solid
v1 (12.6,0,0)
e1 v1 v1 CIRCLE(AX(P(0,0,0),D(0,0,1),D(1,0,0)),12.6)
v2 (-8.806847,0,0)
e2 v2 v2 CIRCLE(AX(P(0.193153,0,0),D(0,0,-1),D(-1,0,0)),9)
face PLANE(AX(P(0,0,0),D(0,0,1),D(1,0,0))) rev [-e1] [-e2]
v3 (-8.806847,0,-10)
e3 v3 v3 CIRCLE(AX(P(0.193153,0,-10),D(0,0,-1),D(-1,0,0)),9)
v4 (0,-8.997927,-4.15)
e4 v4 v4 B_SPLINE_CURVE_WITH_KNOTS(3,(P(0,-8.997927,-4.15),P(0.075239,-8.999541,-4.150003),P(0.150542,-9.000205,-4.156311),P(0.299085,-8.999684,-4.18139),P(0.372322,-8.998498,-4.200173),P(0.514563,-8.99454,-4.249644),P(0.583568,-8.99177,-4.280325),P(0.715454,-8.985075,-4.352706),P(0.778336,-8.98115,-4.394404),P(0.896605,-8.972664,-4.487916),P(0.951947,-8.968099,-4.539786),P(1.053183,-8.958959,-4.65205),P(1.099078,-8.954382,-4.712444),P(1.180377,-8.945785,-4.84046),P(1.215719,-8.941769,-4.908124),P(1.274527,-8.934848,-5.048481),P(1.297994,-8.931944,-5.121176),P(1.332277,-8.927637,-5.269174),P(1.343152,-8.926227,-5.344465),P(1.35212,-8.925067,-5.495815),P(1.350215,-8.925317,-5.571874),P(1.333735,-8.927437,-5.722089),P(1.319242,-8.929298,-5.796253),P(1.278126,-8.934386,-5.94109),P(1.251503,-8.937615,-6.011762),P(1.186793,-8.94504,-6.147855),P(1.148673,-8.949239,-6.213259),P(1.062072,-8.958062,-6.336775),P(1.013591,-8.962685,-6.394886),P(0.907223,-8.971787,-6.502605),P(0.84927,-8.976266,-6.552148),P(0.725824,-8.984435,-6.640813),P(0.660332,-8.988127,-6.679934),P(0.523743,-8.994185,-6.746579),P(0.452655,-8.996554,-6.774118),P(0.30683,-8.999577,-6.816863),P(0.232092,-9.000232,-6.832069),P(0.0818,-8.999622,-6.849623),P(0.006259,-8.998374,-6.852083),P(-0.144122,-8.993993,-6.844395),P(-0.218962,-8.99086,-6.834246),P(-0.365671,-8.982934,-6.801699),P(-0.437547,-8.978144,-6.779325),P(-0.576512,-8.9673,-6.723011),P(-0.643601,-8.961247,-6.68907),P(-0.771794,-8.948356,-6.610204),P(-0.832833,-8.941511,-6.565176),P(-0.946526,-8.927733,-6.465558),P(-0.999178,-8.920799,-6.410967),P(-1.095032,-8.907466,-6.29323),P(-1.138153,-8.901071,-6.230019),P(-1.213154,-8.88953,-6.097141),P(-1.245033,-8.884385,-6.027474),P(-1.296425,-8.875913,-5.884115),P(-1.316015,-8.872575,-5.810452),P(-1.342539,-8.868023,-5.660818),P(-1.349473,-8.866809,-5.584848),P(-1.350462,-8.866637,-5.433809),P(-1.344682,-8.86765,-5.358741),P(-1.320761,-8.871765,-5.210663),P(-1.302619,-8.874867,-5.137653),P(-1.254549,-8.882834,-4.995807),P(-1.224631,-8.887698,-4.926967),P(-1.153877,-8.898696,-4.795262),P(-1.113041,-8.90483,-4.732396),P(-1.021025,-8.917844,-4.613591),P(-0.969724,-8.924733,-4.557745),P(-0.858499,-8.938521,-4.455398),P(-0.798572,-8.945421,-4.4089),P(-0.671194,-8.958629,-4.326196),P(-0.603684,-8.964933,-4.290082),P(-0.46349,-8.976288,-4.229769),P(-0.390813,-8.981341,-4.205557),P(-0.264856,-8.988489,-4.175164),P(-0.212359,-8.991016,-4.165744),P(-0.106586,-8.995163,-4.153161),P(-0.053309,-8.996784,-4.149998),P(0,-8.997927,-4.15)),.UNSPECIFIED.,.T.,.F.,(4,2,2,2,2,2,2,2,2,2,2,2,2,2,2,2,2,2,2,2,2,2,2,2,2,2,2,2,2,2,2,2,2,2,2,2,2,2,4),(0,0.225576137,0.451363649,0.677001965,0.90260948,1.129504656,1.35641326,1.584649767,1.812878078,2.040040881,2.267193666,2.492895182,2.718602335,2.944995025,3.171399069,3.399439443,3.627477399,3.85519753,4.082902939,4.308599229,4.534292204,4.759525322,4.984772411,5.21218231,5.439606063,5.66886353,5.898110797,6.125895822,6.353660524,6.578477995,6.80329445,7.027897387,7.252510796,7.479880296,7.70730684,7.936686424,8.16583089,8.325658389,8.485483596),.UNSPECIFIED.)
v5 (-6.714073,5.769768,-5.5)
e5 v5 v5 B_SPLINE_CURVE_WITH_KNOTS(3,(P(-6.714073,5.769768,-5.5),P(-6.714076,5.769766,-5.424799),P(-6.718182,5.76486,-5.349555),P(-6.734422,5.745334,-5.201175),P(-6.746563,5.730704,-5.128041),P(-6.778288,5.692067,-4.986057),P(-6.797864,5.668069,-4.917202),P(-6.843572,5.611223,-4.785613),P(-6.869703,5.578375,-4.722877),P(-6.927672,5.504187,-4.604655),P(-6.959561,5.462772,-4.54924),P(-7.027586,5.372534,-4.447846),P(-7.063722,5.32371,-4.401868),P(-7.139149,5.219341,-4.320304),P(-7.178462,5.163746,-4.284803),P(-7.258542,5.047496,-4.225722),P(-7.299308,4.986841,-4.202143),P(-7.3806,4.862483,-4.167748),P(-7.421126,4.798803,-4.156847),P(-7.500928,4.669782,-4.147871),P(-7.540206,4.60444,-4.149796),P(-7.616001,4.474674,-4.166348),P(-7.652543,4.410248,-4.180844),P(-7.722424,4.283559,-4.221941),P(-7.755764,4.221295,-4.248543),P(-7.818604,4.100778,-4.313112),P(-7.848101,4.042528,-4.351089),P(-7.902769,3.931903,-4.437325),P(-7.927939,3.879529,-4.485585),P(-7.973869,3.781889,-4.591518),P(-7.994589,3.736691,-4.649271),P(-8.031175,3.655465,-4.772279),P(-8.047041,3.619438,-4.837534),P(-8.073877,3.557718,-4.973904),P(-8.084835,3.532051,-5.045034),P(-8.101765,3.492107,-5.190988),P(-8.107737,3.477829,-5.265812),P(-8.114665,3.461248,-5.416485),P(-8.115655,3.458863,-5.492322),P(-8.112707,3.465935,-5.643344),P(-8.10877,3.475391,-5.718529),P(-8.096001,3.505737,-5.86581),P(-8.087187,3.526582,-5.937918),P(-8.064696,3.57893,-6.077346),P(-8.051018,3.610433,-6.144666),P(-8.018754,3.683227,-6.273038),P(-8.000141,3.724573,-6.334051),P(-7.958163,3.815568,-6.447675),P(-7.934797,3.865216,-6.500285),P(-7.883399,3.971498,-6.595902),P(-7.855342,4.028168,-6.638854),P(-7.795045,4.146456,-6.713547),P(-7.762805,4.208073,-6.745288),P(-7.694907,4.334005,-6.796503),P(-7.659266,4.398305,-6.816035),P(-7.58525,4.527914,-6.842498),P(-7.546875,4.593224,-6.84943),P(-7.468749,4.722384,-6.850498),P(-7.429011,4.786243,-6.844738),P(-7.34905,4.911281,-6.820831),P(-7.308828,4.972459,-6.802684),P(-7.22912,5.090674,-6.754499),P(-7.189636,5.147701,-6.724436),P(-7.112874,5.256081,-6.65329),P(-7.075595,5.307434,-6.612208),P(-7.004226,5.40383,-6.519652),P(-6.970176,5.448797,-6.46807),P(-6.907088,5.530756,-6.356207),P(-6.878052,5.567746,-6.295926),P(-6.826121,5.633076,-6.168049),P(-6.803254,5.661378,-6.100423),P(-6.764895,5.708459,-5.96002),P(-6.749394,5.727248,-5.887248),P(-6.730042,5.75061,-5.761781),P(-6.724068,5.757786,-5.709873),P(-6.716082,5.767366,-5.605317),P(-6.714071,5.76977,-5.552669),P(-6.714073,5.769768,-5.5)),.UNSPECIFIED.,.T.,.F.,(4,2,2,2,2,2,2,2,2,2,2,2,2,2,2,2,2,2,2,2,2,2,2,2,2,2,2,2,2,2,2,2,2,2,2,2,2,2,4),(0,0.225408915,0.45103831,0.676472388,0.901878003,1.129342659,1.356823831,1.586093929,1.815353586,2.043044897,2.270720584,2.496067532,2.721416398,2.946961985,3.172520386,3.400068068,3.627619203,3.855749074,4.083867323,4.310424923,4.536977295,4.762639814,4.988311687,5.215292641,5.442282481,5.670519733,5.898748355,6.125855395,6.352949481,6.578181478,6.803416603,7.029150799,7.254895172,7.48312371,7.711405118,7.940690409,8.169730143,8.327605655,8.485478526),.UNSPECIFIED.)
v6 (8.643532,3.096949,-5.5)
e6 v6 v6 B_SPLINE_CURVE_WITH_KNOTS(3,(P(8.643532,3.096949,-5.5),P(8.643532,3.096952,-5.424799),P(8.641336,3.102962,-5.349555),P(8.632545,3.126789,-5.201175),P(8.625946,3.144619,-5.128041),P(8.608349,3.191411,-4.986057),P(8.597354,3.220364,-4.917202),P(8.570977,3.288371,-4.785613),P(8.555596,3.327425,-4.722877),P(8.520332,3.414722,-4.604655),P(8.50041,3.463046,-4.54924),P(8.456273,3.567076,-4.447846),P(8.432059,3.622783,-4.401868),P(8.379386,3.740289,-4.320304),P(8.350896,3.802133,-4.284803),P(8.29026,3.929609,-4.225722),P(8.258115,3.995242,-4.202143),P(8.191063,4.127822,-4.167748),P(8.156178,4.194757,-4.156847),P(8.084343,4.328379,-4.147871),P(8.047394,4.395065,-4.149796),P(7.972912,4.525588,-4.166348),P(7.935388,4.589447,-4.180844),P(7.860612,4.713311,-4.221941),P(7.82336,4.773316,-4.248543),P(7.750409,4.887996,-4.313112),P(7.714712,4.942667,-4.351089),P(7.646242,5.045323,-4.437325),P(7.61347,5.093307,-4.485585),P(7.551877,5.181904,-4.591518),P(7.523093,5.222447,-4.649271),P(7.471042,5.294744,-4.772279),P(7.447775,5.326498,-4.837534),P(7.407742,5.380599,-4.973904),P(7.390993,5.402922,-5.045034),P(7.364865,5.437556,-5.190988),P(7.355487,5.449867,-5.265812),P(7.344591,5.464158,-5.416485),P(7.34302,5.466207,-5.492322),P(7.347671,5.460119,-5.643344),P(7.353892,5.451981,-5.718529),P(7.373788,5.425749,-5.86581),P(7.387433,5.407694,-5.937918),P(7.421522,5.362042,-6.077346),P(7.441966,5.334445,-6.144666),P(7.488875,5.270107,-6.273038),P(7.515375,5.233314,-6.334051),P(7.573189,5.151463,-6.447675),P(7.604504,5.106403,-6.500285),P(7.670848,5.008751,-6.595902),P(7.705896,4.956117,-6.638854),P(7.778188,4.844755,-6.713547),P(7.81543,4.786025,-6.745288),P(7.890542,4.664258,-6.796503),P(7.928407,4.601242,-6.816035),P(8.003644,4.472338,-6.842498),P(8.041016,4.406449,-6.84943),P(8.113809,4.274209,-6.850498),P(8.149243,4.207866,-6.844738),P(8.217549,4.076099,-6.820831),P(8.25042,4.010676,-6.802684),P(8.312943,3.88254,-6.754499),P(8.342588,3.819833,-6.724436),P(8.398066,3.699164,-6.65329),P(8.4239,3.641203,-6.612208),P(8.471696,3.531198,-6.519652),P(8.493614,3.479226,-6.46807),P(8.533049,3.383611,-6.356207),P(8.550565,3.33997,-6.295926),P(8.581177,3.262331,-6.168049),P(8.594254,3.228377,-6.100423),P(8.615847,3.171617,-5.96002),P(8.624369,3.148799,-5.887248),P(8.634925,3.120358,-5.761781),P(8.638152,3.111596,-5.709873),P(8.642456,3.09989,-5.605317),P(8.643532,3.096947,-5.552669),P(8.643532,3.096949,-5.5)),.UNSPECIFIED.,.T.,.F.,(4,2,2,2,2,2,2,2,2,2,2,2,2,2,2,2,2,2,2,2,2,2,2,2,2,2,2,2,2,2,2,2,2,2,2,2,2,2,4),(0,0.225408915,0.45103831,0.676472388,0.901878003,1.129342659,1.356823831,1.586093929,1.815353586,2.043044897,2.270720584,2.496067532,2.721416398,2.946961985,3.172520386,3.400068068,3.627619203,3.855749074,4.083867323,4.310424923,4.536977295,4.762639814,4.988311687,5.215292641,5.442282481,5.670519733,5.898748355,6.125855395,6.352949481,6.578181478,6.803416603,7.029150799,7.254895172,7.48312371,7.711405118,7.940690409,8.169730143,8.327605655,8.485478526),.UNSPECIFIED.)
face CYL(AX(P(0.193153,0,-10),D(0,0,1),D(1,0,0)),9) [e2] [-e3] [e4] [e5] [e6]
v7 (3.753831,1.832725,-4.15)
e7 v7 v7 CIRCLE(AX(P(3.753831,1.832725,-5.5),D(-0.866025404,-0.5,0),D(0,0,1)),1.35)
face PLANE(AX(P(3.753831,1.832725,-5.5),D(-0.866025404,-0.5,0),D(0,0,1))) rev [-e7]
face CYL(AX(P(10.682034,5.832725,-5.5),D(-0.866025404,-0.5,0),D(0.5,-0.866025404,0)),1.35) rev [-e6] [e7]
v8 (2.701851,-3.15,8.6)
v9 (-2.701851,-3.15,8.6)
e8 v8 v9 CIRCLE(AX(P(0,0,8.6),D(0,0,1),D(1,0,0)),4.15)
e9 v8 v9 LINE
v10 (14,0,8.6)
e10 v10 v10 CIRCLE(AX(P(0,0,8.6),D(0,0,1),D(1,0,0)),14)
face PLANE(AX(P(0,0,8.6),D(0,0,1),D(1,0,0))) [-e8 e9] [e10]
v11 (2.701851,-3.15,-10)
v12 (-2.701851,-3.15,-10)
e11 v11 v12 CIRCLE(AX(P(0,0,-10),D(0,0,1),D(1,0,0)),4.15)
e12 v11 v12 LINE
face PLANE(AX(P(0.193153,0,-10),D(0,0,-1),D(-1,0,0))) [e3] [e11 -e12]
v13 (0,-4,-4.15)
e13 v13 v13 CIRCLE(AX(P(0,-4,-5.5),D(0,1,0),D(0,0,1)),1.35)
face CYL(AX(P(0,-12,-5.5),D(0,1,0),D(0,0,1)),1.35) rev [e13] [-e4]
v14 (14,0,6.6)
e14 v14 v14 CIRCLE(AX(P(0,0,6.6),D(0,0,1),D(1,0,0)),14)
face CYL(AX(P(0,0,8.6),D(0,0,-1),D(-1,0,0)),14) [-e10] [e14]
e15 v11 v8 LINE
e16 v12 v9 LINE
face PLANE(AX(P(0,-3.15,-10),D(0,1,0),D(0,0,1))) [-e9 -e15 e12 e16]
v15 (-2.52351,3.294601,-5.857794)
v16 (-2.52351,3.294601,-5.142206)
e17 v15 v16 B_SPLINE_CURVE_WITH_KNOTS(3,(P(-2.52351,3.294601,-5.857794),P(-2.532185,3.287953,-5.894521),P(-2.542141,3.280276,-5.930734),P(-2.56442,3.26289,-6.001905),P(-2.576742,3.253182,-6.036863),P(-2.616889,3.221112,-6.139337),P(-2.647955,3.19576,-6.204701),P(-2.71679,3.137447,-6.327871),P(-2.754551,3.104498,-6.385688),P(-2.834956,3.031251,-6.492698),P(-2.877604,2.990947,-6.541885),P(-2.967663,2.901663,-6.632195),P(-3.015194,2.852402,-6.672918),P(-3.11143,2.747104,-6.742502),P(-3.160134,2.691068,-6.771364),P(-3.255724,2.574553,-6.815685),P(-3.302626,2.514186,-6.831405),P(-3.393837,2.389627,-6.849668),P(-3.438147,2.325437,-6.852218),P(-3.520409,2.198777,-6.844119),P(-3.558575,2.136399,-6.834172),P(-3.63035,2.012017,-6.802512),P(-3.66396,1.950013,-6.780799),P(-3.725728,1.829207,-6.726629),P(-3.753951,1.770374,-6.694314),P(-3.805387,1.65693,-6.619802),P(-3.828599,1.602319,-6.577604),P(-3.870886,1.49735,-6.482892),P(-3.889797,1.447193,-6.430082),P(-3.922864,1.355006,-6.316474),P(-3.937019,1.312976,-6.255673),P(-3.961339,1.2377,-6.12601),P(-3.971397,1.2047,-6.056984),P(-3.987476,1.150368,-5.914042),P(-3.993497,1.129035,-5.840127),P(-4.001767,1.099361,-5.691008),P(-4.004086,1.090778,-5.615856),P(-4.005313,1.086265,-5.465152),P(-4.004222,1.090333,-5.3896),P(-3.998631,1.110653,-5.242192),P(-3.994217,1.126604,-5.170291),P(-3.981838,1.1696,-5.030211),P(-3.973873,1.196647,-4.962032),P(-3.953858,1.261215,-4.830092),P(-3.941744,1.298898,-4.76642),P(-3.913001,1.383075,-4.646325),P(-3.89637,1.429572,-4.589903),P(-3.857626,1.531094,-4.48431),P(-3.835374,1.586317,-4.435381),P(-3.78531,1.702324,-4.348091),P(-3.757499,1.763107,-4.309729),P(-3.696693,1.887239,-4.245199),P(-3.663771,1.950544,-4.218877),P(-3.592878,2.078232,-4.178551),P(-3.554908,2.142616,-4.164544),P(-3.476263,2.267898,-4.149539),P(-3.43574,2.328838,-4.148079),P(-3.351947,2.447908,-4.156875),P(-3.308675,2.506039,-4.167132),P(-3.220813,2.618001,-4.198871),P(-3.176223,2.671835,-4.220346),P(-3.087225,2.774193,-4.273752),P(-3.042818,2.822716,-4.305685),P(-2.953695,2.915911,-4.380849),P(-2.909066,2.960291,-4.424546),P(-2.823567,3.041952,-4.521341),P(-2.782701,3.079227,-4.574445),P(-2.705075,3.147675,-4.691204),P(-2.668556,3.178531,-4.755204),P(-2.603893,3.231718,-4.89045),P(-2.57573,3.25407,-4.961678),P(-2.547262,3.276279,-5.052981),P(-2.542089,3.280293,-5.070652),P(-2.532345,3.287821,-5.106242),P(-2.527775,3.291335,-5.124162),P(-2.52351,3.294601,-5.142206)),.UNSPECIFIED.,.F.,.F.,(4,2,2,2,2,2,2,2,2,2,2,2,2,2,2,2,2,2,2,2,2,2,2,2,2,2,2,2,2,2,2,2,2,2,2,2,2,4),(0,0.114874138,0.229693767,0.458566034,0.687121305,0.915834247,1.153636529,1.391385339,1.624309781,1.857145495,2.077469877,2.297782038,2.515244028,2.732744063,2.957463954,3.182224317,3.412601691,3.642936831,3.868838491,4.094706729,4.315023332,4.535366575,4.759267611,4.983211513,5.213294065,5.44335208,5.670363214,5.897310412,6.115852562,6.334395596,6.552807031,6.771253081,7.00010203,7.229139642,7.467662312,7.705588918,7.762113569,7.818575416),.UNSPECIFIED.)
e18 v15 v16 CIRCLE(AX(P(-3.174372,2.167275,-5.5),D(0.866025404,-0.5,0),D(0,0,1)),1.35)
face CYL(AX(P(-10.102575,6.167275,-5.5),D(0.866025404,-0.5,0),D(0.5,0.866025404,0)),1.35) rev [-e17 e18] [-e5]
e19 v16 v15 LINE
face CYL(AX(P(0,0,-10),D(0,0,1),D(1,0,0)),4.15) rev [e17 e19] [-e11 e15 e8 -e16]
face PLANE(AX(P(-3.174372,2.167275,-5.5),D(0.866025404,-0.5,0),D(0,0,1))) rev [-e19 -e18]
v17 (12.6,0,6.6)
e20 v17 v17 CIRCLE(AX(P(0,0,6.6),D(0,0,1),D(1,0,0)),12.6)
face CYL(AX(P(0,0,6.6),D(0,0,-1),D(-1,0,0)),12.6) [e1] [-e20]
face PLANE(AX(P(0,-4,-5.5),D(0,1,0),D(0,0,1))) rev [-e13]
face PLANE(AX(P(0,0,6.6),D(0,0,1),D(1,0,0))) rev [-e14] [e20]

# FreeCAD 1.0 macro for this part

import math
import FreeCAD as App
import Part
import Sketcher

doc = App.newDocument("Part")
body = doc.addObject("PartDesign::Body", "Body")

# Sketch on XY plane
sketch1 = body.newObject("Sketcher::SketchObject", "Sketch")
sketch1.AttachmentSupport = (doc.getObject("XY_Plane"), [""])
sketch1.MapMode = "FlatFace"
sketch1.addGeometry(Part.Circle(App.Vector(0, 0, 0), App.Vector(0, 0, 1), 12.6), False)
sketch1.addConstraint([
    Sketcher.Constraint("Coincident", 0, 3, -1, 1),
    Sketcher.Constraint("Diameter", 0, 25.2),
])
pad1 = body.newObject("PartDesign::Pad", "Pad")
pad1.Profile = sketch1
pad1.Length = 6.6

# Sketch on XY plane
sketch2 = body.newObject("Sketcher::SketchObject", "Sketch001")
sketch2.AttachmentSupport = (doc.getObject("XY_Plane"), [""])
sketch2.MapMode = "FlatFace"
sketch2.AttachmentOffset = App.Placement(App.Vector(0, 0, 6.6), App.Rotation())
sketch2.addGeometry(Part.Circle(App.Vector(0, 0, 0), App.Vector(0, 0, 1), 14), False)
sketch2.addConstraint([
    Sketcher.Constraint("Coincident", 0, 3, -1, 1),
    Sketcher.Constraint("Diameter", 0, 28.0),
])
pad2 = body.newObject("PartDesign::Pad", "Pad001")
pad2.Profile = sketch2
pad2.Length = 2

# Sketch on XY plane
sketch3 = body.newObject("Sketcher::SketchObject", "Sketch002")
sketch3.AttachmentSupport = (doc.getObject("XY_Plane"), [""])
sketch3.MapMode = "FlatFace"
sketch3.addGeometry(Part.Circle(App.Vector(0.193153, 0, 0), App.Vector(0, 0, 1), 9), False)
sketch3.addConstraint([
    Sketcher.Constraint("PointOnObject", 0, 3, -1),
    Sketcher.Constraint("Diameter", 0, 18.0),
    Sketcher.Constraint("DistanceX", -1, 1, 0, 3, 0.193153),
])
pad3 = body.newObject("PartDesign::Pad", "Pad002")
pad3.Profile = sketch3
pad3.Length = 10
pad3.Reversed = True

# Sketch on XZ plane
sketch4 = body.newObject("Sketcher::SketchObject", "Sketch003")
sketch4.AttachmentSupport = (doc.getObject("XZ_Plane"), [""])
sketch4.MapMode = "FlatFace"
sketch4.AttachmentOffset = App.Placement(App.Vector(0, 0, 4), App.Rotation())
sketch4.addGeometry(Part.Circle(App.Vector(0, -5.5, 0), App.Vector(0, 0, 1), 1.35), False)
sketch4.addConstraint([
    Sketcher.Constraint("PointOnObject", 0, 3, -2),
    Sketcher.Constraint("Diameter", 0, 2.7),
    Sketcher.Constraint("DistanceY", 0, 3, -1, 1, 5.5),
])
pocket1 = body.newObject("PartDesign::Pocket", "Pocket")
pocket1.Profile = sketch4
pocket1.Length = 8
pocket1.Reversed = True

# Sketch on XY plane
sketch5 = body.newObject("Sketcher::SketchObject", "Sketch004")
sketch5.AttachmentSupport = (doc.getObject("XY_Plane"), [""])
sketch5.MapMode = "FlatFace"
sketch5.AttachmentOffset = App.Placement(App.Vector(0, 0, 8.6), App.Rotation())
sketch5.addGeometry([
    Part.LineSegment(App.Vector(-2.701851, -3.15, 0), App.Vector(2.701851, -3.15, 0)),
    Part.ArcOfCircle(Part.Circle(App.Vector(0, 0, 0), App.Vector(0, 0, 1), 4.15), math.radians(-49.3793), math.radians(229.3793)),
], False)
sketch5.addConstraint([
    Sketcher.Constraint("Coincident", 0, 1, 1, 2),
    Sketcher.Constraint("Coincident", 1, 1, 0, 2),
    Sketcher.Constraint("Horizontal", 0),
    Sketcher.Constraint("Coincident", 1, 3, -1, 1),
    Sketcher.Constraint("Radius", 1, 4.15),
    Sketcher.Constraint("DistanceY", 0, 1, -1, 1, 3.15),
])
pocket2 = body.newObject("PartDesign::Pocket", "Pocket001")
pocket2.Profile = sketch5
pocket2.Type = "ThroughAll"
doc.recompute()

datumline = body.newObject("PartDesign::Line", "DatumLine")
datumline.Placement = App.Placement(App.Vector(0.193153, 0, 0), App.Rotation(App.Vector(0, 0, 1), App.Vector(0, 0, 1)))
polarpattern = body.newObject("PartDesign::PolarPattern", "PolarPattern")
polarpattern.Originals = [pocket1]
polarpattern.Axis = (datumline, [""])
polarpattern.Angle = 360
polarpattern.Occurrences = 3
body.Tip = polarpattern

doc.recompute()
